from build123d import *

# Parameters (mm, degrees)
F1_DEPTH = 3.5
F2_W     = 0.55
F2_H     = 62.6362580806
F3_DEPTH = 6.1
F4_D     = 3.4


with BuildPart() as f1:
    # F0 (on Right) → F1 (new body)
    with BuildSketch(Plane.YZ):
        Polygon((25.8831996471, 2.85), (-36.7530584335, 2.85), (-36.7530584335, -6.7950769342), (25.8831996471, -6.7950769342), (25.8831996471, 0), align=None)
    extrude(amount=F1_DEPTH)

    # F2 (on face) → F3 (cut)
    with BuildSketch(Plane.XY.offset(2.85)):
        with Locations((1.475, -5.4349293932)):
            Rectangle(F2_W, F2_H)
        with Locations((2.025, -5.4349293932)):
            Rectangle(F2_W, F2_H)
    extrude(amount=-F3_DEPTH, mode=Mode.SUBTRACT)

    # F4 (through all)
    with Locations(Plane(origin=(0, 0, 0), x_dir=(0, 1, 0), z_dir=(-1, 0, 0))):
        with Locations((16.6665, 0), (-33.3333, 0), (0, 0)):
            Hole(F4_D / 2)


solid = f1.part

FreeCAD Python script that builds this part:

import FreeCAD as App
import Part
import Sketcher
from FreeCAD import Vector
Q = App.Units.Quantity

doc = App.newDocument("Part")
body = doc.addObject("PartDesign::Body", "Body")

sketch1 = body.newObject("Sketcher::SketchObject", "Sketch")
sketch1.AttachmentSupport = (doc.getObject("YZ_Plane"), [""])
sketch1.MapMode = "FlatFace"
sketch1.addGeometry([
    Part.LineSegment(Vector(26, 3, 0), Vector(-37, 3, 0)),
    Part.LineSegment(Vector(-37, 3, 0), Vector(-37, -7, 0)),
    Part.LineSegment(Vector(-37, -7, 0), Vector(26, -7, 0)),
    Part.LineSegment(Vector(26, -7, 0), Vector(26, 3, 0)),
], False)
sketch1.addConstraint([
    Sketcher.Constraint("Coincident", 0, 2, 1, 1),
    Sketcher.Constraint("Coincident", 1, 2, 2, 1),
    Sketcher.Constraint("Coincident", 2, 2, 3, 1),
    Sketcher.Constraint("Coincident", 3, 2, 0, 1),
    Sketcher.Constraint("Horizontal", 0),
    Sketcher.Constraint("Vertical", 1),
    Sketcher.Constraint("Horizontal", 2),
    Sketcher.Constraint("Vertical", 3),
    Sketcher.Constraint("DistanceY", -1, 1, 0, 2, Q("2.85 mm")),
    Sketcher.Constraint("DistanceX", 0, 2, 0, 1, Q("62.636258 mm")),
    Sketcher.Constraint("DistanceX", -1, 1, 2, 2, Q("25.8832 mm")),
    Sketcher.Constraint("DistanceY", 1, 2, 1, 1, Q("9.645077 mm")),
])
pad1 = body.newObject("PartDesign::Pad", "Pad")
pad1.Profile = sketch1
pad1.Length = 3.5

sketch2 = body.newObject("Sketcher::SketchObject", "Sketch001")
sketch2.AttachmentSupport = (doc.getObject("XY_Plane"), [""])
sketch2.MapMode = "FlatFace"
sketch2.AttachmentOffset = App.Placement(Vector(0, 0, 2.85), App.Rotation())
sketch2.addGeometry([
    Part.LineSegment(Vector(1.2, 25.9, 0), Vector(1.2, -36.8, 0)),
    Part.LineSegment(Vector(1.2, -36.8, 0), Vector(2.3, -36.8, 0)),
    Part.LineSegment(Vector(2.3, -36.8, 0), Vector(2.3, 25.9, 0)),
    Part.LineSegment(Vector(2.3, 25.9, 0), Vector(1.2, 25.9, 0)),
], False)
sketch2.addConstraint([
    Sketcher.Constraint("Coincident", 0, 2, 1, 1),
    Sketcher.Constraint("Coincident", 1, 2, 2, 1),
    Sketcher.Constraint("Coincident", 2, 2, 3, 1),
    Sketcher.Constraint("Coincident", 3, 2, 0, 1),
    Sketcher.Constraint("Vertical", 0),
    Sketcher.Constraint("Horizontal", 1),
    Sketcher.Constraint("Vertical", 2),
    Sketcher.Constraint("Horizontal", 3),
    Sketcher.Constraint("DistanceX", 1, 1, 1, 2, Q("1.1 mm")),
    Sketcher.Constraint("DistanceX", -1, 1, 0, 2, Q("1.2 mm")),
    Sketcher.Constraint("DistanceY", 0, 2, 0, 1, Q("62.636258 mm")),
    Sketcher.Constraint("DistanceY", -1, 1, 2, 2, Q("25.8832 mm")),
])
pocket1 = body.newObject("PartDesign::Pocket", "Pocket")
pocket1.Profile = sketch2
pocket1.Length = 6.1

sketch3 = body.newObject("Sketcher::SketchObject", "Sketch002")
sketch3.AttachmentSupport = (doc.getObject("YZ_Plane"), [""])
sketch3.MapMode = "FlatFace"
sketch3.addGeometry([
    Part.Circle(Vector(16.7, 0, 0), Vector(0, 0, 1), 1.7),
    Part.Circle(Vector(-33.3, 0, 0), Vector(0, 0, 1), 1.7),
    Part.Circle(Vector(0, 0, 0), Vector(0, 0, 1), 1.7),
], False)
sketch3.addConstraint([
    Sketcher.Constraint("Coincident", 2, 3, -1, 1),
    Sketcher.Constraint("Equal", 0, 1),
    Sketcher.Constraint("Equal", 1, 2),
    Sketcher.Constraint("PointOnObject", 0, 3, -1),
    Sketcher.Constraint("PointOnObject", 1, 3, -1),
    Sketcher.Constraint("Diameter", 0, Q("3.4 mm")),
    Sketcher.Constraint("DistanceX", -1, 1, 0, 3, Q("16.6665 mm")),
    Sketcher.Constraint("DistanceX", 1, 3, -1, 1, Q("33.3333 mm")),
])
doc.recompute()
hole = body.newObject("PartDesign::Hole", "Hole")
hole.Profile = sketch3
hole.ThreadType = "None"
hole.Diameter = 3.4
hole.DepthType = "ThroughAll"
hole.Reversed = True

doc.recompute()
